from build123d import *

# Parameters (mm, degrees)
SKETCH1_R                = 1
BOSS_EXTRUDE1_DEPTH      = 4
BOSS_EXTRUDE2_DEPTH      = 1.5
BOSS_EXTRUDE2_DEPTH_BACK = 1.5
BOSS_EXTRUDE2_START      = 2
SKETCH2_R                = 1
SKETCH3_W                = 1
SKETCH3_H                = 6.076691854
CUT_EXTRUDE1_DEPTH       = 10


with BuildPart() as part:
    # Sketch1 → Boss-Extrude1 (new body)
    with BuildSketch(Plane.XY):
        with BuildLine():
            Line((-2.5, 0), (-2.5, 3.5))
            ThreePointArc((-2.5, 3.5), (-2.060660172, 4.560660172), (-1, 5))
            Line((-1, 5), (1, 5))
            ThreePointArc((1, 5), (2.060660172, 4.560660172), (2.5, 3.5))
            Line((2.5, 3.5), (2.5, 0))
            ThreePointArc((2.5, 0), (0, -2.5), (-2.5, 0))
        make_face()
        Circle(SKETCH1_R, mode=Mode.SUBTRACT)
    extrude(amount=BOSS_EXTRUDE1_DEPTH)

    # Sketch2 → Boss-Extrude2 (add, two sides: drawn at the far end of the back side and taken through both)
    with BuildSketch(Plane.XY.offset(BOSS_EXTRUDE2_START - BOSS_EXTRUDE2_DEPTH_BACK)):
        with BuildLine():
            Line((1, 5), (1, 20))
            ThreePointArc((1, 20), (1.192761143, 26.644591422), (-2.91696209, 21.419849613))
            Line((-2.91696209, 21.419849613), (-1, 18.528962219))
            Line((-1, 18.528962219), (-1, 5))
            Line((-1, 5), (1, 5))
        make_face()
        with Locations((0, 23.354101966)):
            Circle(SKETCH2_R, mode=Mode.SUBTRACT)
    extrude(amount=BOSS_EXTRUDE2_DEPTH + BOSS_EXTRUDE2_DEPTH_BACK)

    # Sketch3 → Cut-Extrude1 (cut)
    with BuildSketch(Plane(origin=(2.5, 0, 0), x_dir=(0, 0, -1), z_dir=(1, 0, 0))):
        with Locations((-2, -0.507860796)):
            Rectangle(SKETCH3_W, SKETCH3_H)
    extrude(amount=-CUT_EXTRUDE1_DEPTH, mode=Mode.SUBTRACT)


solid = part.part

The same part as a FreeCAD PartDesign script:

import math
import FreeCAD as App
import Part
import Sketcher


def add_polygon(sketch, points):
    """Adds a closed chain of lines whose ends are joined by coincident constraints."""
    first, n = sketch.GeometryCount, len(points)
    for a, b in zip(points, points[1:] + points[:1]):
        sketch.addGeometry(Part.LineSegment(App.Vector(*a, 0), App.Vector(*b, 0)), False)
    for i in range(n):
        sketch.addConstraint(Sketcher.Constraint("Coincident", first + i, 2, first + (i + 1) % n, 1))

doc = App.newDocument("Part")
body = doc.addObject("PartDesign::Body", "Body")

sketch1 = doc.addObject("Sketcher::SketchObject", "Sketch")
body.addObject(sketch1)
sketch1.AttachmentSupport = (doc.XY_Plane, [""])
sketch1.MapMode = "FlatFace"
sketch1.addGeometry([
    Part.LineSegment(App.Vector(-2.5, 3.5, 0), App.Vector(-2.5, 0, 0)),
    Part.ArcOfCircle(Part.Circle(App.Vector(0, 0, 0), App.Vector(0, 0, 1), 2.5), math.radians(180), math.radians(360)),
    Part.LineSegment(App.Vector(2.5, 0, 0), App.Vector(2.5, 3.5, 0)),
    Part.ArcOfCircle(Part.Circle(App.Vector(1, 3.5, 0), App.Vector(0, 0, 1), 1.5), math.radians(0), math.radians(90)),
    Part.LineSegment(App.Vector(1, 5, 0), App.Vector(-1, 5, 0)),
    Part.ArcOfCircle(Part.Circle(App.Vector(-1, 3.5, 0), App.Vector(0, 0, 1), 1.5), math.radians(90), math.radians(180)),
    Part.Circle(App.Vector(0, 0, 0), App.Vector(0, 0, 1), 1),
], False)
sketch1.addConstraint([
    Sketcher.Constraint("Tangent", 0, 2, 1, 1),
    Sketcher.Constraint("Tangent", 1, 2, 2, 1),
    Sketcher.Constraint("Tangent", 2, 2, 3, 1),
    Sketcher.Constraint("Tangent", 3, 2, 4, 1),
    Sketcher.Constraint("Tangent", 4, 2, 5, 1),
    Sketcher.Constraint("Tangent", 5, 2, 0, 1),
    Sketcher.Constraint("Vertical", 0),
    Sketcher.Constraint("Vertical", 2),
    Sketcher.Constraint("Horizontal", 4),
    Sketcher.Constraint("Coincident", 1, 3, -1, 1),
    Sketcher.Constraint("Coincident", 6, 3, -1, 1),
    Sketcher.Constraint("Equal", 3, 5),
    Sketcher.Constraint("Diameter", 6, 2.0),
    Sketcher.Constraint("Radius", 1, 2.5),
    Sketcher.Constraint("Radius", 3, 1.5),
    Sketcher.Constraint("DistanceY", 0, 2, 0, 1, 3.5),
])
pad1 = doc.addObject("PartDesign::Pad", "Pad")
body.addObject(pad1)
pad1.Profile = sketch1
pad1.Length = 4

sketch2 = doc.addObject("Sketcher::SketchObject", "Sketch001")
body.addObject(sketch2)
sketch2.AttachmentSupport = (doc.XY_Plane, [""])
sketch2.MapMode = "FlatFace"
sketch2.AttachmentOffset = App.Placement(App.Vector(0, 0, 2), App.Rotation())
sketch2.addGeometry([
    Part.LineSegment(App.Vector(1, 5, 0), App.Vector(1, 20, 0)),
    Part.ArcOfCircle(Part.Circle(App.Vector(0, 23.4, 0), App.Vector(0, 0, 1), 3.5), math.radians(-73), math.radians(214)),
    Part.LineSegment(App.Vector(-2.9, 21.4, 0), App.Vector(-1, 18.5, 0)),
    Part.LineSegment(App.Vector(-1, 18.5, 0), App.Vector(-1, 5, 0)),
    Part.LineSegment(App.Vector(-1, 5, 0), App.Vector(1, 5, 0)),
    Part.Circle(App.Vector(0, 23.4, 0), App.Vector(0, 0, 1), 1),
], False)
sketch2.addConstraint([
    Sketcher.Constraint("Coincident", 0, 2, 1, 1),
    Sketcher.Constraint("Tangent", 1, 2, 2, 1),
    Sketcher.Constraint("Coincident", 2, 2, 3, 1),
    Sketcher.Constraint("Coincident", 3, 2, 4, 1),
    Sketcher.Constraint("Coincident", 4, 2, 0, 1),
    Sketcher.Constraint("Vertical", 0),
    Sketcher.Constraint("Vertical", 3),
    Sketcher.Constraint("Horizontal", 4),
    Sketcher.Constraint("Coincident", 5, 3, 1, 3),
    Sketcher.Constraint("PointOnObject", 1, 3, -2),
    Sketcher.Constraint("Diameter", 5, 2.0),
    Sketcher.Constraint("Radius", 1, 3.5),
    Sketcher.Constraint("DistanceX", 4, 1, 4, 2, 2.0),
    Sketcher.Constraint("DistanceY", 0, 1, 0, 2, 15.0),
    Sketcher.Constraint("DistanceX", -1, 1, 0, 2, 1.0),
    Sketcher.Constraint("DistanceY", -1, 1, 0, 2, 20.0),
    Sketcher.Constraint("DistanceY", 3, 2, 3, 1, 13.528962),
])
pad2 = doc.addObject("PartDesign::Pad", "Pad001")
body.addObject(pad2)
pad2.Profile = sketch2
pad2.Type = "TwoLengths"
pad2.Length = 1.5
pad2.Length2 = 1.5

sketch3 = doc.addObject("Sketcher::SketchObject", "Sketch002")
body.addObject(sketch3)
sketch3.AttachmentSupport = (doc.YZ_Plane, [""])
sketch3.MapMode = "FlatFace"
sketch3.AttachmentOffset = App.Placement(App.Vector(0, 0, 2.5), App.Rotation())
add_polygon(sketch3, [(2.5, 2.5), (-3.5, 2.5), (-3.5, 1.5), (2.5, 1.5)])
sketch3.addConstraint([
    Sketcher.Constraint("Horizontal", 0),
    Sketcher.Constraint("Vertical", 1),
    Sketcher.Constraint("Horizontal", 2),
    Sketcher.Constraint("Vertical", 3),
    Sketcher.Constraint("DistanceY", 1, 2, 1, 1, 1.0),
    Sketcher.Constraint("DistanceY", -1, 1, 0, 2, 2.5),
    Sketcher.Constraint("DistanceX", 0, 2, 0, 1, 6.076692),
    Sketcher.Constraint("DistanceX", 0, 2, -1, 1, 3.546207),
])
pocket1 = doc.addObject("PartDesign::Pocket", "Pocket")
body.addObject(pocket1)
pocket1.Profile = sketch3
pocket1.Length = 10

doc.recompute()
